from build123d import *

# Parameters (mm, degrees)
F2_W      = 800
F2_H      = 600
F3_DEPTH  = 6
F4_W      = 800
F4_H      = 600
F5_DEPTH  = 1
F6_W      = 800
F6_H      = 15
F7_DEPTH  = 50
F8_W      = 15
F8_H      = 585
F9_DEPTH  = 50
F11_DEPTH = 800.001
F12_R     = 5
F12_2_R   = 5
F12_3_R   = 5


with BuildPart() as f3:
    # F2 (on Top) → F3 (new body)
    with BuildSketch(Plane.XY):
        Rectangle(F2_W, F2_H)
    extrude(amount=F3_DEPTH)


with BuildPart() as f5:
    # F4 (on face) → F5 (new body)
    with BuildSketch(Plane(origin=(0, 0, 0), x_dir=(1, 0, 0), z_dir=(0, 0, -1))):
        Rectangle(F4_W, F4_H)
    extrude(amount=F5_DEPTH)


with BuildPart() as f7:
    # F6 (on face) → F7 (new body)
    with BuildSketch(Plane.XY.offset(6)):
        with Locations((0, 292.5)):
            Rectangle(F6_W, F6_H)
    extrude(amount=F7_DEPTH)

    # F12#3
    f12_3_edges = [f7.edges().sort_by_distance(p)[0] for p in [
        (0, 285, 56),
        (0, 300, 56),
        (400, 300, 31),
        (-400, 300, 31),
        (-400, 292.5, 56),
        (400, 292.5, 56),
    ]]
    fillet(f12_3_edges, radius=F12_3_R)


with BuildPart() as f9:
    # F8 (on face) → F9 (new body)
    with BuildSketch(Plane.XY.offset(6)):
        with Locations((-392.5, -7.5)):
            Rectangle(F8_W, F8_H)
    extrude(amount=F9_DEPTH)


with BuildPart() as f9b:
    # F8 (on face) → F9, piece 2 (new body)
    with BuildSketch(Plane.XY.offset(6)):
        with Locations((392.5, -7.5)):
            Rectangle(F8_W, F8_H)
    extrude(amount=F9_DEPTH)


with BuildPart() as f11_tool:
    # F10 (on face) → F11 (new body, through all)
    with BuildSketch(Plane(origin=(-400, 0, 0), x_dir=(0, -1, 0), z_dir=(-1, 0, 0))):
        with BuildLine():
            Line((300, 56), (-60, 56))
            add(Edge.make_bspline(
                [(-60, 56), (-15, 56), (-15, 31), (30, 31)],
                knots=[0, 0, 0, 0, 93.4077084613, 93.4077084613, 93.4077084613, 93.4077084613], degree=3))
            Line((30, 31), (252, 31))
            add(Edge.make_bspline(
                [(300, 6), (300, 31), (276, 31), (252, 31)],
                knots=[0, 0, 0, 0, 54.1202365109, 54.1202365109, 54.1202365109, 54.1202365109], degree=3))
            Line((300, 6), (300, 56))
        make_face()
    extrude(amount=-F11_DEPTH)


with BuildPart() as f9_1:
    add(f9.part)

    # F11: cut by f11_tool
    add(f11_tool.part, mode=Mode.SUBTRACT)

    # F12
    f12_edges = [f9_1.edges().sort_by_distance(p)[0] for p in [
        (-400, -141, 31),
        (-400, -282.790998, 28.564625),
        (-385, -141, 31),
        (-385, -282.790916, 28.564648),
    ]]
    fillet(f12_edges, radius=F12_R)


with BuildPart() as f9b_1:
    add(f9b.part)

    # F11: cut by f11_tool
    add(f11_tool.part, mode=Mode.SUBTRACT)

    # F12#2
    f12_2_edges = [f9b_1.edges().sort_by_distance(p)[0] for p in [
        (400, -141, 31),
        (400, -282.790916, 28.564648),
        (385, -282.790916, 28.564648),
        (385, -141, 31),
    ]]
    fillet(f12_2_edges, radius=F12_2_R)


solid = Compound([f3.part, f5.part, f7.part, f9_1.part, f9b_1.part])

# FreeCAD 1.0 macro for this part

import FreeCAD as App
import Part
import Sketcher
from FreeCAD import Vector
Q = App.Units.Quantity


def edges_at(feature, points):
    """Names of the edges that pass closest to the given points."""
    edges = feature.Shape.Edges
    near = lambda p: min(range(len(edges)), key=lambda i: edges[i].distToShape(Part.Vertex(*p))[0])
    return sorted({f"Edge{near(p) + 1}" for p in points})

doc = App.newDocument("Part")
params = doc.addObject("Spreadsheet::Sheet", "Params")
for row, (alias, value) in enumerate([
    ("sketch1_width", "800 mm"),
    ("sketch1_height", "600 mm"),
    ("pad1_length", "6 mm"),
    ("sketch2_width", "800 mm"),
    ("sketch2_height", "600 mm"),
    ("pad2_length", "1 mm"),
    ("sketch3_width", "800 mm"),
    ("sketch3_height", "15 mm"),
    ("pad3_length", "50 mm"),
    ("fillet_radius", "5 mm"),
    ("sketch4_width", "15 mm"),
    ("sketch4_height", "585 mm"),
    ("pad4_length", "50 mm"),
    ("sketch5_width", "15 mm"),
    ("sketch5_height", "585 mm"),
    ("pad5_length", "50 mm"),
    ("pad6_length", "800.001 mm"),
    ("fillet2_radius", "5 mm"),
    ("fillet3_radius", "5 mm"),
], start=1):
    params.set(f"A{row}", alias)
    params.set(f"B{row}", "=" + value)
    params.setAlias(f"B{row}", alias)

body = doc.addObject("PartDesign::Body", "Body")

# Sketch on XY plane
sketch1 = body.newObject("Sketcher::SketchObject", "Sketch")
sketch1.AttachmentSupport = (doc.getObject("XY_Plane"), [""])
sketch1.MapMode = "FlatFace"
sketch1.addGeometry(Part.LineSegment(Vector(-400, 300, 0), Vector(-400, -300, 0)), False)
sketch1.addGeometry(Part.LineSegment(Vector(-400, -300, 0), Vector(400, -300, 0)), False)
sketch1.addGeometry(Part.LineSegment(Vector(400, -300, 0), Vector(400, 300, 0)), False)
sketch1.addGeometry(Part.LineSegment(Vector(400, 300, 0), Vector(-400, 300, 0)), False)
sketch1.addConstraint(Sketcher.Constraint("Coincident", 0, 2, 1, 1))
sketch1.addConstraint(Sketcher.Constraint("Coincident", 1, 2, 2, 1))
sketch1.addConstraint(Sketcher.Constraint("Coincident", 2, 2, 3, 1))
sketch1.addConstraint(Sketcher.Constraint("Coincident", 3, 2, 0, 1))
sketch1.addConstraint(Sketcher.Constraint("Vertical", 0))
sketch1.addConstraint(Sketcher.Constraint("Horizontal", 1))
sketch1.addConstraint(Sketcher.Constraint("Vertical", 2))
sketch1.addConstraint(Sketcher.Constraint("Horizontal", 3))
sketch1.addConstraint(Sketcher.Constraint("Symmetric", 0, 2, 2, 2, -1, 1))
sketch1.addConstraint(Sketcher.Constraint("DistanceX", 1, 1, 1, 2, Q("800 mm")))
sketch1.addConstraint(Sketcher.Constraint("DistanceY", 0, 2, 0, 1, Q("600 mm")))
sketch1.setExpression("Constraints[9]", "Params.sketch1_width")
sketch1.setExpression("Constraints[10]", "Params.sketch1_height")
pad1 = body.newObject("PartDesign::Pad", "Pad")
pad1.Profile = sketch1
pad1.setExpression("Length", "Params.pad1_length")
body2 = doc.addObject("PartDesign::Body", "Body001")

# Sketch on XY plane
sketch2 = body2.newObject("Sketcher::SketchObject", "Sketch001")
sketch2.AttachmentSupport = (doc.getObject("XY_Plane001"), [""])
sketch2.MapMode = "FlatFace"
sketch2.addGeometry(Part.LineSegment(Vector(-400, -300, 0), Vector(-400, 300, 0)), False)
sketch2.addGeometry(Part.LineSegment(Vector(-400, 300, 0), Vector(400, 300, 0)), False)
sketch2.addGeometry(Part.LineSegment(Vector(400, 300, 0), Vector(400, -300, 0)), False)
sketch2.addGeometry(Part.LineSegment(Vector(400, -300, 0), Vector(-400, -300, 0)), False)
sketch2.addConstraint(Sketcher.Constraint("Coincident", 0, 2, 1, 1))
sketch2.addConstraint(Sketcher.Constraint("Coincident", 1, 2, 2, 1))
sketch2.addConstraint(Sketcher.Constraint("Coincident", 2, 2, 3, 1))
sketch2.addConstraint(Sketcher.Constraint("Coincident", 3, 2, 0, 1))
sketch2.addConstraint(Sketcher.Constraint("Vertical", 0))
sketch2.addConstraint(Sketcher.Constraint("Horizontal", 1))
sketch2.addConstraint(Sketcher.Constraint("Vertical", 2))
sketch2.addConstraint(Sketcher.Constraint("Horizontal", 3))
sketch2.addConstraint(Sketcher.Constraint("Symmetric", 0, 2, 2, 2, -1, 1))
sketch2.addConstraint(Sketcher.Constraint("DistanceX", 1, 1, 1, 2, Q("800 mm")))
sketch2.addConstraint(Sketcher.Constraint("DistanceY", 0, 1, 0, 2, Q("600 mm")))
sketch2.setExpression("Constraints[9]", "Params.sketch2_width")
sketch2.setExpression("Constraints[10]", "Params.sketch2_height")
pad2 = body2.newObject("PartDesign::Pad", "Pad001")
pad2.Profile = sketch2
pad2.setExpression("Length", "Params.pad2_length")
pad2.Reversed = True
body3 = doc.addObject("PartDesign::Body", "Body002")

# Sketch on XY plane
sketch3 = body3.newObject("Sketcher::SketchObject", "Sketch002")
sketch3.AttachmentSupport = (doc.getObject("XY_Plane002"), [""])
sketch3.MapMode = "FlatFace"
sketch3.AttachmentOffset = App.Placement(Vector(0, 0, 6), App.Rotation())
sketch3.addGeometry(Part.LineSegment(Vector(-400, 300, 0), Vector(-400, 285, 0)), False)
sketch3.addGeometry(Part.LineSegment(Vector(-400, 285, 0), Vector(400, 285, 0)), False)
sketch3.addGeometry(Part.LineSegment(Vector(400, 285, 0), Vector(400, 300, 0)), False)
sketch3.addGeometry(Part.LineSegment(Vector(400, 300, 0), Vector(-400, 300, 0)), False)
sketch3.addConstraint(Sketcher.Constraint("Coincident", 0, 2, 1, 1))
sketch3.addConstraint(Sketcher.Constraint("Coincident", 1, 2, 2, 1))
sketch3.addConstraint(Sketcher.Constraint("Coincident", 2, 2, 3, 1))
sketch3.addConstraint(Sketcher.Constraint("Coincident", 3, 2, 0, 1))
sketch3.addConstraint(Sketcher.Constraint("Vertical", 0))
sketch3.addConstraint(Sketcher.Constraint("Horizontal", 1))
sketch3.addConstraint(Sketcher.Constraint("Vertical", 2))
sketch3.addConstraint(Sketcher.Constraint("Horizontal", 3))
sketch3.addConstraint(Sketcher.Constraint("DistanceX", 1, 1, 1, 2, Q("800 mm")))
sketch3.addConstraint(Sketcher.Constraint("DistanceY", 0, 2, 0, 1, Q("15 mm")))
sketch3.addConstraint(Sketcher.Constraint("DistanceX", 0, 2, -1, 1, Q("400 mm")))
sketch3.addConstraint(Sketcher.Constraint("DistanceY", -1, 1, 0, 2, Q("285 mm")))
sketch3.setExpression("Constraints[8]", "Params.sketch3_width")
sketch3.setExpression("Constraints[9]", "Params.sketch3_height")
pad3 = body3.newObject("PartDesign::Pad", "Pad002")
pad3.Profile = sketch3
pad3.setExpression("Length", "Params.pad3_length")
doc.recompute()

fillet = body3.newObject("PartDesign::Fillet", "Fillet")
fillet.Base = (pad3, edges_at(pad3, [
    (0, 285, 56),
    (0, 300, 56),
    (400, 300, 31),
    (-400, 300, 31),
    (-400, 292.5, 56),
    (400, 292.5, 56),
]))
fillet.setExpression("Radius", "Params.fillet_radius")
body4 = doc.addObject("PartDesign::Body", "Body003")

# Sketch on XY plane
sketch4 = body4.newObject("Sketcher::SketchObject", "Sketch003")
sketch4.AttachmentSupport = (doc.getObject("XY_Plane003"), [""])
sketch4.MapMode = "FlatFace"
sketch4.AttachmentOffset = App.Placement(Vector(0, 0, 6), App.Rotation())
sketch4.addGeometry(Part.LineSegment(Vector(-400, 285, 0), Vector(-400, -300, 0)), False)
sketch4.addGeometry(Part.LineSegment(Vector(-400, -300, 0), Vector(-385, -300, 0)), False)
sketch4.addGeometry(Part.LineSegment(Vector(-385, -300, 0), Vector(-385, 285, 0)), False)
sketch4.addGeometry(Part.LineSegment(Vector(-385, 285, 0), Vector(-400, 285, 0)), False)
sketch4.addConstraint(Sketcher.Constraint("Coincident", 0, 2, 1, 1))
sketch4.addConstraint(Sketcher.Constraint("Coincident", 1, 2, 2, 1))
sketch4.addConstraint(Sketcher.Constraint("Coincident", 2, 2, 3, 1))
sketch4.addConstraint(Sketcher.Constraint("Coincident", 3, 2, 0, 1))
sketch4.addConstraint(Sketcher.Constraint("Vertical", 0))
sketch4.addConstraint(Sketcher.Constraint("Horizontal", 1))
sketch4.addConstraint(Sketcher.Constraint("Vertical", 2))
sketch4.addConstraint(Sketcher.Constraint("Horizontal", 3))
sketch4.addConstraint(Sketcher.Constraint("DistanceX", 1, 1, 1, 2, Q("15 mm")))
sketch4.addConstraint(Sketcher.Constraint("DistanceY", 0, 2, 0, 1, Q("585 mm")))
sketch4.addConstraint(Sketcher.Constraint("DistanceX", 0, 2, -1, 1, Q("400 mm")))
sketch4.addConstraint(Sketcher.Constraint("DistanceY", 0, 2, -1, 1, Q("300 mm")))
sketch4.setExpression("Constraints[8]", "Params.sketch4_width")
sketch4.setExpression("Constraints[9]", "Params.sketch4_height")
pad4 = body4.newObject("PartDesign::Pad", "Pad003")
pad4.Profile = sketch4
pad4.setExpression("Length", "Params.pad4_length")
body5 = doc.addObject("PartDesign::Body", "Body004")

# Sketch on XY plane
sketch5 = body5.newObject("Sketcher::SketchObject", "Sketch004")
sketch5.AttachmentSupport = (doc.getObject("XY_Plane004"), [""])
sketch5.MapMode = "FlatFace"
sketch5.AttachmentOffset = App.Placement(Vector(0, 0, 6), App.Rotation())
sketch5.addGeometry(Part.LineSegment(Vector(385, 285, 0), Vector(385, -300, 0)), False)
sketch5.addGeometry(Part.LineSegment(Vector(385, -300, 0), Vector(400, -300, 0)), False)
sketch5.addGeometry(Part.LineSegment(Vector(400, -300, 0), Vector(400, 285, 0)), False)
sketch5.addGeometry(Part.LineSegment(Vector(400, 285, 0), Vector(385, 285, 0)), False)
sketch5.addConstraint(Sketcher.Constraint("Coincident", 0, 2, 1, 1))
sketch5.addConstraint(Sketcher.Constraint("Coincident", 1, 2, 2, 1))
sketch5.addConstraint(Sketcher.Constraint("Coincident", 2, 2, 3, 1))
sketch5.addConstraint(Sketcher.Constraint("Coincident", 3, 2, 0, 1))
sketch5.addConstraint(Sketcher.Constraint("Vertical", 0))
sketch5.addConstraint(Sketcher.Constraint("Horizontal", 1))
sketch5.addConstraint(Sketcher.Constraint("Vertical", 2))
sketch5.addConstraint(Sketcher.Constraint("Horizontal", 3))
sketch5.addConstraint(Sketcher.Constraint("DistanceX", 1, 1, 1, 2, Q("15 mm")))
sketch5.addConstraint(Sketcher.Constraint("DistanceY", 0, 2, 0, 1, Q("585 mm")))
sketch5.addConstraint(Sketcher.Constraint("DistanceX", -1, 1, 0, 2, Q("385 mm")))
sketch5.addConstraint(Sketcher.Constraint("DistanceY", 0, 2, -1, 1, Q("300 mm")))
sketch5.setExpression("Constraints[8]", "Params.sketch5_width")
sketch5.setExpression("Constraints[9]", "Params.sketch5_height")
pad5 = body5.newObject("PartDesign::Pad", "Pad004")
pad5.Profile = sketch5
pad5.setExpression("Length", "Params.pad5_length")
body6 = doc.addObject("PartDesign::Body", "Body005")

# Sketch on YZ plane
sketch6 = body6.newObject("Sketcher::SketchObject", "Sketch005")
sketch6.AttachmentSupport = (doc.getObject("YZ_Plane005"), [""])
sketch6.MapMode = "FlatFace"
sketch6.AttachmentOffset = App.Placement(Vector(0, 0, -400), App.Rotation())
sketch6.addGeometry(Part.LineSegment(Vector(-300, 56, 0), Vector(60, 56, 0)), False)
sketch6.addGeometry(Part.BSplineCurve([Vector(60, 56, 0), Vector(15, 56, 0), Vector(15, 31, 0), Vector(-30, 31, 0)], [4, 4], [0, 93.407708461], False, 3, [1, 1, 1, 1], False), False)
sketch6.addGeometry(Part.LineSegment(Vector(-30, 31, 0), Vector(-252, 31, 0)), False)
sketch6.addGeometry(Part.BSplineCurve([Vector(-300, 6, 0), Vector(-300, 31, 0), Vector(-276, 31, 0), Vector(-252, 31, 0)], [4, 4], [0, 54.120236511], False, 3, [1, 1, 1, 1], False), False)
sketch6.addGeometry(Part.LineSegment(Vector(-300, 6, 0), Vector(-300, 56, 0)), False)
sketch6.addConstraint(Sketcher.Constraint("Block", 1))
sketch6.addConstraint(Sketcher.Constraint("Block", 3))
sketch6.addConstraint(Sketcher.Constraint("Coincident", 0, 2, 1, 1))
sketch6.addConstraint(Sketcher.Constraint("Coincident", 1, 2, 2, 1))
sketch6.addConstraint(Sketcher.Constraint("Coincident", 2, 2, 3, 2))
sketch6.addConstraint(Sketcher.Constraint("Coincident", 3, 1, 4, 1))
sketch6.addConstraint(Sketcher.Constraint("Coincident", 4, 2, 0, 1))
sketch6.addConstraint(Sketcher.Constraint("Horizontal", 0))
sketch6.addConstraint(Sketcher.Constraint("Vertical", 4))
pad6 = body6.newObject("PartDesign::Pad", "Pad005")
pad6.Profile = sketch6
pad6.setExpression("Length", "Params.pad6_length")
doc.recompute()

body7 = doc.addObject("PartDesign::Body", "Body006")
body7.BaseFeature = body6
boolean = body4.newObject("PartDesign::Boolean", "Boolean")
boolean.Type = "Cut"
boolean.addObjects([body7])
doc.recompute()

fillet2 = body4.newObject("PartDesign::Fillet", "Fillet001")
fillet2.Base = (boolean, edges_at(boolean, [
    (-400, -141, 31),
    (-400, -282.791, 28.565),
    (-385, -141, 31),
    (-385, -282.791, 28.565),
]))
fillet2.setExpression("Radius", "Params.fillet2_radius")
doc.recompute()

boolean2 = body5.newObject("PartDesign::Boolean", "Boolean001")
boolean2.Type = "Cut"
boolean2.addObjects([body6])
doc.recompute()

fillet3 = body5.newObject("PartDesign::Fillet", "Fillet002")
fillet3.Base = (boolean2, edges_at(boolean2, [
    (400, -141, 31),
    (400, -282.791, 28.565),
    (385, -282.791, 28.565),
    (385, -141, 31),
]))
fillet3.setExpression("Radius", "Params.fillet3_radius")

doc.recompute()
